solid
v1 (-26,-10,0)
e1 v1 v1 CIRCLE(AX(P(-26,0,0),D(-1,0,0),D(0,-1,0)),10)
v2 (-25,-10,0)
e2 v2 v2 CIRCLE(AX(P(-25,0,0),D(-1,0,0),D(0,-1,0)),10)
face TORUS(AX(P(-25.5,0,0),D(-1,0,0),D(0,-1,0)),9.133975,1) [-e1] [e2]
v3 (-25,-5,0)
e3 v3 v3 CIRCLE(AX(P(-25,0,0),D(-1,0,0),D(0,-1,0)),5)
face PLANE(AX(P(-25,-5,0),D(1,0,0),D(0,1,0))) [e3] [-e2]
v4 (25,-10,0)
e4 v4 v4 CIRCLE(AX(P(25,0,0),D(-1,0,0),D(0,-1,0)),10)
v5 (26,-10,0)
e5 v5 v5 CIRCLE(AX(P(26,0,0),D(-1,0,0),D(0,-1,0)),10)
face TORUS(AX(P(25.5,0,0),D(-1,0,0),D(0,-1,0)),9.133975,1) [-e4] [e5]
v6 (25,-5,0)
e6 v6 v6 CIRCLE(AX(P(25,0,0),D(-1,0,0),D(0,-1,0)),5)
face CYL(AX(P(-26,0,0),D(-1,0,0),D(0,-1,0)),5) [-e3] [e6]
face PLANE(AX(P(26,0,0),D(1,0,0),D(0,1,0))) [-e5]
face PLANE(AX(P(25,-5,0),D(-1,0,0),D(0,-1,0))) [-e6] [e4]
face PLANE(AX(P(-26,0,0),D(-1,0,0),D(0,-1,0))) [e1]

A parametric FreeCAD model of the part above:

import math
import FreeCAD as App
import Part
import Sketcher

doc = App.newDocument("Part")
body = doc.addObject("PartDesign::Body", "Body")

sketch1 = doc.addObject("Sketcher::SketchObject", "Sketch")
body.addObject(sketch1)
sketch1.AttachmentSupport = (doc.XY_Plane, [""])
sketch1.MapMode = "FlatFace"
sketch1.addGeometry(Part.LineSegment(App.Vector(26, 0, 0), App.Vector(-26, 0, 0)), False)
sketch1.addGeometry(Part.LineSegment(App.Vector(-26, 0, 0), App.Vector(-26, -10, 0)), False)
sketch1.addGeometry(Part.ArcOfCircle(Part.Circle(App.Vector(-25.5, -9.133975, 0), App.Vector(0, 0, 1), 1), math.radians(-120), math.radians(-60)), False)
sketch1.addGeometry(Part.LineSegment(App.Vector(-25, -10, 0), App.Vector(-25, -5, 0)), False)
sketch1.addGeometry(Part.LineSegment(App.Vector(-25, -5, 0), App.Vector(25, -5, 0)), False)
sketch1.addGeometry(Part.LineSegment(App.Vector(25, -5, 0), App.Vector(25, -10, 0)), False)
sketch1.addGeometry(Part.ArcOfCircle(Part.Circle(App.Vector(25.5, -9.133975, 0), App.Vector(0, 0, 1), 1), math.radians(-120), math.radians(-60)), False)
sketch1.addGeometry(Part.LineSegment(App.Vector(26, -10, 0), App.Vector(26, 0, 0)), False)
sketch1.addConstraint(Sketcher.Constraint("Coincident", 0, 2, 1, 1))
sketch1.addConstraint(Sketcher.Constraint("Coincident", 1, 2, 2, 1))
sketch1.addConstraint(Sketcher.Constraint("Coincident", 2, 2, 3, 1))
sketch1.addConstraint(Sketcher.Constraint("Coincident", 3, 2, 4, 1))
sketch1.addConstraint(Sketcher.Constraint("Coincident", 4, 2, 5, 1))
sketch1.addConstraint(Sketcher.Constraint("Coincident", 5, 2, 6, 1))
sketch1.addConstraint(Sketcher.Constraint("Coincident", 6, 2, 7, 1))
sketch1.addConstraint(Sketcher.Constraint("Coincident", 7, 2, 0, 1))
sketch1.addConstraint(Sketcher.Constraint("Horizontal", 0))
sketch1.addConstraint(Sketcher.Constraint("Vertical", 1))
sketch1.addConstraint(Sketcher.Constraint("Vertical", 3))
sketch1.addConstraint(Sketcher.Constraint("Horizontal", 4))
sketch1.addConstraint(Sketcher.Constraint("Vertical", 5))
sketch1.addConstraint(Sketcher.Constraint("Vertical", 7))
sketch1.addConstraint(Sketcher.Constraint("Equal", 2, 6))
sketch1.addConstraint(Sketcher.Constraint("Symmetric", 0, 2, 7, 2, -1, 1))
sketch1.addConstraint(Sketcher.Constraint("Symmetric", 2, 3, 6, 3, -2))
sketch1.addConstraint(Sketcher.Constraint("Horizontal", 1, 2, 2, 2))
sketch1.addConstraint(Sketcher.Constraint("Horizontal", 2, 2, 5, 2))
sketch1.addConstraint(Sketcher.Constraint("Radius", 2, 1.0))
sketch1.addConstraint(Sketcher.Constraint("DistanceX", 0, 2, 0, 1, 52.0))
sketch1.addConstraint(Sketcher.Constraint("DistanceX", 4, 1, 4, 2, 50.0))
sketch1.addConstraint(Sketcher.Constraint("DistanceY", 1, 2, 1, 1, 10.0))
sketch1.addConstraint(Sketcher.Constraint("DistanceY", 3, 1, 3, 2, 5.0))
revolution = doc.addObject("PartDesign::Revolution", "Revolution")
body.addObject(revolution)
revolution.Profile = sketch1
revolution.ReferenceAxis = (sketch1, ["H_Axis"])
revolution.Angle = 360

doc.recompute()
